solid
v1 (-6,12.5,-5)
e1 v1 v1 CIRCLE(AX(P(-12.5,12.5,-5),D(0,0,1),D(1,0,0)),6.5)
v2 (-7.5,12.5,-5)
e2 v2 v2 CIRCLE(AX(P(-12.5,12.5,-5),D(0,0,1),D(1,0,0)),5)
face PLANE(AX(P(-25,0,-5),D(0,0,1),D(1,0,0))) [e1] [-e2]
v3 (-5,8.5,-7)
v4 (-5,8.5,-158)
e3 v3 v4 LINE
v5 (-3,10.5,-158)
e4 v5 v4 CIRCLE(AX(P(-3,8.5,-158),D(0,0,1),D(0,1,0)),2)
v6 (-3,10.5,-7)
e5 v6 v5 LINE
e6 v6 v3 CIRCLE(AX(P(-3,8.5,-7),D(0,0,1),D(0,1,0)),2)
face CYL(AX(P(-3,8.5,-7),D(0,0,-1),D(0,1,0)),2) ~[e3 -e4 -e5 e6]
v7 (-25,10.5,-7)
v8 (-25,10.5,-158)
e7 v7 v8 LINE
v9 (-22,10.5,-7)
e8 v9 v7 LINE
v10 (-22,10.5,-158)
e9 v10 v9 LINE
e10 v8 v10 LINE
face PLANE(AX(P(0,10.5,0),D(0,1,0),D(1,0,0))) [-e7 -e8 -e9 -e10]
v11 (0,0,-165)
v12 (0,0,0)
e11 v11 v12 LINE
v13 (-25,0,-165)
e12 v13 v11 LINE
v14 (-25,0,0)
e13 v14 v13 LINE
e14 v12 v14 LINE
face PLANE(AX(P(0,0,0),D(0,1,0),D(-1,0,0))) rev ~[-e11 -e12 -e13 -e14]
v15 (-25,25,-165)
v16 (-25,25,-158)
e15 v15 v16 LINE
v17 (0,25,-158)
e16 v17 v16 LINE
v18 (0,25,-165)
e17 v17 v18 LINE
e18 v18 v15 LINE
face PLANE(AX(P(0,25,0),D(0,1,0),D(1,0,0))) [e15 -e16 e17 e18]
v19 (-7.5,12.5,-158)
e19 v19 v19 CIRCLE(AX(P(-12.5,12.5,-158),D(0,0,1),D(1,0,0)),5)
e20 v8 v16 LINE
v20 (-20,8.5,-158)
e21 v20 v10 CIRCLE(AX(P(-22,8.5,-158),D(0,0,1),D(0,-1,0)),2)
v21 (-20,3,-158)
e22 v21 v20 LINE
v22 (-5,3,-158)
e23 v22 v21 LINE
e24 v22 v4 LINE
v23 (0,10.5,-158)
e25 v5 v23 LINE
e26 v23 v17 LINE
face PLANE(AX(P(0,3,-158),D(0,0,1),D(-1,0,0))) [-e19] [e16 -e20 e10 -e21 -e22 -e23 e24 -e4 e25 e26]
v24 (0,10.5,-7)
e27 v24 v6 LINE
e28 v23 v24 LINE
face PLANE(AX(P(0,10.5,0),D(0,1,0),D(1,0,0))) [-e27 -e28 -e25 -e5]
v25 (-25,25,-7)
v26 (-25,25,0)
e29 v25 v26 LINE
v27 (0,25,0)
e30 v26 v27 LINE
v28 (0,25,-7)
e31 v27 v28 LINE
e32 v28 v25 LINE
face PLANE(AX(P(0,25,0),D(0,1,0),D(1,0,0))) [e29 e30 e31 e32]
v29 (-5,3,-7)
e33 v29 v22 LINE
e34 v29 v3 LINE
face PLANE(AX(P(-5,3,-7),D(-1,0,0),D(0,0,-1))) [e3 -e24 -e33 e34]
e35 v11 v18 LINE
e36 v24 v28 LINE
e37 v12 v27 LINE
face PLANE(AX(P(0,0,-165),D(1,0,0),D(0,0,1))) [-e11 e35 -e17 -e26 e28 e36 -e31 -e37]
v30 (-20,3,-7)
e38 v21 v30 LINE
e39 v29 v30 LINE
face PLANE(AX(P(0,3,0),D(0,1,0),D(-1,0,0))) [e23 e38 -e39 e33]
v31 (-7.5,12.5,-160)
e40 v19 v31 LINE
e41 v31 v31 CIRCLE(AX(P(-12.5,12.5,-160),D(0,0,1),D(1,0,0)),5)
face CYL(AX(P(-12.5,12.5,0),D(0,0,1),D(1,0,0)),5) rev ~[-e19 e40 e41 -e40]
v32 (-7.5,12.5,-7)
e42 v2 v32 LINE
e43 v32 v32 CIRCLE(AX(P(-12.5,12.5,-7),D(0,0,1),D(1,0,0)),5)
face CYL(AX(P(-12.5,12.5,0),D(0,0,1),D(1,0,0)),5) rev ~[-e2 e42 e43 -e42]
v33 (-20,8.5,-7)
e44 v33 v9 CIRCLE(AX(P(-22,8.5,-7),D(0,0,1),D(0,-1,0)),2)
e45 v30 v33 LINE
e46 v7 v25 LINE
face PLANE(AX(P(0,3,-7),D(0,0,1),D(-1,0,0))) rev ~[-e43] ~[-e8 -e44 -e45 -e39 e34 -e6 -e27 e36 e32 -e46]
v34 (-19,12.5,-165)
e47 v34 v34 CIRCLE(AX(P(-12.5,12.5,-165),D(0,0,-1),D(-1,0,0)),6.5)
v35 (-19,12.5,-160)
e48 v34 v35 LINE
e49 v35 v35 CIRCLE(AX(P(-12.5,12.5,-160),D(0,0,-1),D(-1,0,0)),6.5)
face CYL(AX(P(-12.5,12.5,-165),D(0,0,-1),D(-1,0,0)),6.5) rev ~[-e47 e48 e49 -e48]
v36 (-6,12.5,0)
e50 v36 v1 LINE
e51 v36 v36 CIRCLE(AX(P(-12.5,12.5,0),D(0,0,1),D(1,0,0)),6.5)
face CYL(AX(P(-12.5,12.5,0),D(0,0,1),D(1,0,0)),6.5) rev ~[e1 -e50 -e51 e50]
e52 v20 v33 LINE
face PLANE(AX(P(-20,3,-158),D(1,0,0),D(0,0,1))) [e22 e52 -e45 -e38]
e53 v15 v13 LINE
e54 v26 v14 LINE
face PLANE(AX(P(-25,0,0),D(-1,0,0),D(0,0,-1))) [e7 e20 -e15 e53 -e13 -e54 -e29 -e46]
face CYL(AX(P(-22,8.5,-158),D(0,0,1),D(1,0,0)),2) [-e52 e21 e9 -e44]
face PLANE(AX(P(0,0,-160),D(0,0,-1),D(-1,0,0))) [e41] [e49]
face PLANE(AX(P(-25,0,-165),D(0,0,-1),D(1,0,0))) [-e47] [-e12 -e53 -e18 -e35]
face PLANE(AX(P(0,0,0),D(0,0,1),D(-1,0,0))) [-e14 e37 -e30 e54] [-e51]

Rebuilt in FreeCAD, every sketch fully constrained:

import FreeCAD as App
import Part
import Sketcher
from FreeCAD import Vector


def edges_at(feature, points):
    """Names of the edges that pass closest to the given points."""
    edges = feature.Shape.Edges
    near = lambda p: min(range(len(edges)), key=lambda i: edges[i].distToShape(Part.Vertex(*p))[0])
    return sorted({f"Edge{near(p) + 1}" for p in points})

doc = App.newDocument("Part")
body = doc.addObject("PartDesign::Body", "Body")

sketch1 = body.newObject("Sketcher::SketchObject", "Sketch")
sketch1.AttachmentSupport = (doc.getObject("XZ_Plane"), [""])
sketch1.MapMode = "FlatFace"
sketch1.addGeometry([
    Part.LineSegment(Vector(-25, 0, 0), Vector(0, 0, 0)),
    Part.LineSegment(Vector(0, 0, 0), Vector(0, -165, 0)),
    Part.LineSegment(Vector(0, -165, 0), Vector(-25, -165, 0)),
    Part.LineSegment(Vector(-25, -165, 0), Vector(-25, 0, 0)),
], False)
sketch1.addConstraint([
    Sketcher.Constraint("Coincident", 0, 2, 1, 1),
    Sketcher.Constraint("Coincident", 1, 2, 2, 1),
    Sketcher.Constraint("Coincident", 2, 2, 3, 1),
    Sketcher.Constraint("Coincident", 3, 2, 0, 1),
    Sketcher.Constraint("Horizontal", 0),
    Sketcher.Constraint("Vertical", 1),
    Sketcher.Constraint("Horizontal", 2),
    Sketcher.Constraint("Vertical", 3),
    Sketcher.Constraint("Coincident", 0, 2, -1, 1),
    Sketcher.Constraint("DistanceX", 0, 1, 0, 2, 25.0),
    Sketcher.Constraint("DistanceY", 1, 2, 1, 1, 165.0),
])
pad1 = body.newObject("PartDesign::Pad", "Pad")
pad1.Profile = sketch1
pad1.Length = 3
pad1.Reversed = True

sketch2 = body.newObject("Sketcher::SketchObject", "Sketch001")
sketch2.AttachmentSupport = (doc.getObject("XZ_Plane"), [""])
sketch2.MapMode = "FlatFace"
sketch2.AttachmentOffset = App.Placement(Vector(0, 0, -3), App.Rotation())
sketch2.addGeometry([
    Part.LineSegment(Vector(0, -165, 0), Vector(-25, -165, 0)),
    Part.LineSegment(Vector(-25, -165, 0), Vector(-25, -158, 0)),
    Part.LineSegment(Vector(-25, -158, 0), Vector(0, -158, 0)),
    Part.LineSegment(Vector(0, -158, 0), Vector(0, -165, 0)),
    Part.LineSegment(Vector(0, -7, 0), Vector(-25, -7, 0)),
    Part.LineSegment(Vector(-25, -7, 0), Vector(-25, 0, 0)),
    Part.LineSegment(Vector(-25, 0, 0), Vector(0, 0, 0)),
    Part.LineSegment(Vector(0, 0, 0), Vector(0, -7, 0)),
], False)
sketch2.addConstraint([
    Sketcher.Constraint("Coincident", 0, 2, 1, 1),
    Sketcher.Constraint("Coincident", 1, 2, 2, 1),
    Sketcher.Constraint("Coincident", 2, 2, 3, 1),
    Sketcher.Constraint("Coincident", 3, 2, 0, 1),
    Sketcher.Constraint("Coincident", 4, 2, 5, 1),
    Sketcher.Constraint("Coincident", 5, 2, 6, 1),
    Sketcher.Constraint("Coincident", 6, 2, 7, 1),
    Sketcher.Constraint("Coincident", 7, 2, 4, 1),
    Sketcher.Constraint("Horizontal", 0),
    Sketcher.Constraint("Vertical", 1),
    Sketcher.Constraint("Horizontal", 2),
    Sketcher.Constraint("Vertical", 3),
    Sketcher.Constraint("Horizontal", 4),
    Sketcher.Constraint("Vertical", 5),
    Sketcher.Constraint("Horizontal", 6),
    Sketcher.Constraint("Vertical", 7),
    Sketcher.Constraint("Coincident", 6, 2, -1, 1),
    Sketcher.Constraint("PointOnObject", 2, 2, -2),
    Sketcher.Constraint("Vertical", 1, 2, 4, 2),
    Sketcher.Constraint("Equal", 3, 5),
    Sketcher.Constraint("DistanceY", 1, 1, 1, 2, 7.0),
    Sketcher.Constraint("DistanceX", 0, 2, 0, 1, 25.0),
    Sketcher.Constraint("DistanceY", 0, 2, -1, 1, 165.0),
])
pad2 = body.newObject("PartDesign::Pad", "Pad001")
pad2.Profile = sketch2
pad2.Length = 22
pad2.Reversed = True

sketch3 = body.newObject("Sketcher::SketchObject", "Sketch002")
sketch3.AttachmentSupport = (doc.getObject("XY_Plane"), [""])
sketch3.MapMode = "FlatFace"
sketch3.addGeometry(Part.Circle(Vector(-12, 12, 0), Vector(0, 0, 1), 6), False)
sketch3.addConstraint([
    Sketcher.Constraint("Diameter", 0, 13.0),
    Sketcher.Constraint("DistanceX", 0, 3, -1, 1, 12.5),
    Sketcher.Constraint("DistanceY", -1, 1, 0, 3, 12.5),
])
pocket1 = body.newObject("PartDesign::Pocket", "Pocket")
pocket1.Profile = sketch3
pocket1.Length = 5

sketch4 = body.newObject("Sketcher::SketchObject", "Sketch003")
sketch4.AttachmentSupport = (doc.getObject("XY_Plane"), [""])
sketch4.MapMode = "FlatFace"
sketch4.AttachmentOffset = App.Placement(Vector(0, 0, -165), App.Rotation())
sketch4.addGeometry(Part.Circle(Vector(-12, 12, 0), Vector(0, 0, 1), 6), False)
sketch4.addConstraint([
    Sketcher.Constraint("Diameter", 0, 13.0),
    Sketcher.Constraint("DistanceX", 0, 3, -1, 1, 12.5),
    Sketcher.Constraint("DistanceY", -1, 1, 0, 3, 12.5),
])
pocket2 = body.newObject("PartDesign::Pocket", "Pocket001")
pocket2.Profile = sketch4
pocket2.Length = 5
pocket2.Reversed = True

sketch5 = body.newObject("Sketcher::SketchObject", "Sketch004")
sketch5.AttachmentSupport = (doc.getObject("XY_Plane"), [""])
sketch5.MapMode = "FlatFace"
sketch5.addGeometry(Part.Circle(Vector(-12, 12, 0), Vector(0, 0, 1), 5), False)
sketch5.addConstraint([
    Sketcher.Constraint("Diameter", 0, 10.0),
    Sketcher.Constraint("DistanceX", 0, 3, -1, 1, 12.5),
    Sketcher.Constraint("DistanceY", -1, 1, 0, 3, 12.5),
])
pocket3 = body.newObject("PartDesign::Pocket", "Pocket002")
pocket3.Profile = sketch5
pocket3.Length = 165

sketch6 = body.newObject("Sketcher::SketchObject", "Sketch005")
sketch6.AttachmentSupport = (doc.getObject("XZ_Plane"), [""])
sketch6.MapMode = "FlatFace"
sketch6.AttachmentOffset = App.Placement(Vector(0, 0, -3), App.Rotation())
sketch6.addGeometry([
    Part.LineSegment(Vector(-20, -158, 0), Vector(-25, -158, 0)),
    Part.LineSegment(Vector(-25, -158, 0), Vector(-25, -7, 0)),
    Part.LineSegment(Vector(-25, -7, 0), Vector(-20, -7, 0)),
    Part.LineSegment(Vector(-20, -7, 0), Vector(-20, -158, 0)),
    Part.LineSegment(Vector(0, -158, 0), Vector(-5, -158, 0)),
    Part.LineSegment(Vector(-5, -158, 0), Vector(-5, -7, 0)),
    Part.LineSegment(Vector(-5, -7, 0), Vector(0, -7, 0)),
    Part.LineSegment(Vector(0, -7, 0), Vector(0, -158, 0)),
], False)
sketch6.addConstraint([
    Sketcher.Constraint("Coincident", 0, 2, 1, 1),
    Sketcher.Constraint("Coincident", 1, 2, 2, 1),
    Sketcher.Constraint("Coincident", 2, 2, 3, 1),
    Sketcher.Constraint("Coincident", 3, 2, 0, 1),
    Sketcher.Constraint("Coincident", 4, 2, 5, 1),
    Sketcher.Constraint("Coincident", 5, 2, 6, 1),
    Sketcher.Constraint("Coincident", 6, 2, 7, 1),
    Sketcher.Constraint("Coincident", 7, 2, 4, 1),
    Sketcher.Constraint("Horizontal", 0),
    Sketcher.Constraint("Vertical", 1),
    Sketcher.Constraint("Horizontal", 2),
    Sketcher.Constraint("Vertical", 3),
    Sketcher.Constraint("Horizontal", 4),
    Sketcher.Constraint("Vertical", 5),
    Sketcher.Constraint("Horizontal", 6),
    Sketcher.Constraint("Vertical", 7),
    Sketcher.Constraint("PointOnObject", 6, 2, -2),
    Sketcher.Constraint("Horizontal", 3, 2, 4, 2),
    Sketcher.Constraint("Horizontal", 2, 2, 5, 2),
    Sketcher.Constraint("Equal", 2, 4),
    Sketcher.Constraint("DistanceX", 0, 2, 0, 1, 5.0),
    Sketcher.Constraint("DistanceY", 1, 1, 1, 2, 151.0),
    Sketcher.Constraint("DistanceX", 0, 2, -1, 1, 25.0),
    Sketcher.Constraint("DistanceY", 0, 2, -1, 1, 158.0),
])
pad3 = body.newObject("PartDesign::Pad", "Pad002")
pad3.Profile = sketch6
pad3.Length = 7.5
pad3.Reversed = True
doc.recompute()

fillet = body.newObject("PartDesign::Fillet", "Fillet")
fillet.Base = (pad3, edges_at(pad3, [(-5, 10.5, -82.5), (-20, 10.5, -82.5)]))
fillet.Radius = 2

doc.recompute()
